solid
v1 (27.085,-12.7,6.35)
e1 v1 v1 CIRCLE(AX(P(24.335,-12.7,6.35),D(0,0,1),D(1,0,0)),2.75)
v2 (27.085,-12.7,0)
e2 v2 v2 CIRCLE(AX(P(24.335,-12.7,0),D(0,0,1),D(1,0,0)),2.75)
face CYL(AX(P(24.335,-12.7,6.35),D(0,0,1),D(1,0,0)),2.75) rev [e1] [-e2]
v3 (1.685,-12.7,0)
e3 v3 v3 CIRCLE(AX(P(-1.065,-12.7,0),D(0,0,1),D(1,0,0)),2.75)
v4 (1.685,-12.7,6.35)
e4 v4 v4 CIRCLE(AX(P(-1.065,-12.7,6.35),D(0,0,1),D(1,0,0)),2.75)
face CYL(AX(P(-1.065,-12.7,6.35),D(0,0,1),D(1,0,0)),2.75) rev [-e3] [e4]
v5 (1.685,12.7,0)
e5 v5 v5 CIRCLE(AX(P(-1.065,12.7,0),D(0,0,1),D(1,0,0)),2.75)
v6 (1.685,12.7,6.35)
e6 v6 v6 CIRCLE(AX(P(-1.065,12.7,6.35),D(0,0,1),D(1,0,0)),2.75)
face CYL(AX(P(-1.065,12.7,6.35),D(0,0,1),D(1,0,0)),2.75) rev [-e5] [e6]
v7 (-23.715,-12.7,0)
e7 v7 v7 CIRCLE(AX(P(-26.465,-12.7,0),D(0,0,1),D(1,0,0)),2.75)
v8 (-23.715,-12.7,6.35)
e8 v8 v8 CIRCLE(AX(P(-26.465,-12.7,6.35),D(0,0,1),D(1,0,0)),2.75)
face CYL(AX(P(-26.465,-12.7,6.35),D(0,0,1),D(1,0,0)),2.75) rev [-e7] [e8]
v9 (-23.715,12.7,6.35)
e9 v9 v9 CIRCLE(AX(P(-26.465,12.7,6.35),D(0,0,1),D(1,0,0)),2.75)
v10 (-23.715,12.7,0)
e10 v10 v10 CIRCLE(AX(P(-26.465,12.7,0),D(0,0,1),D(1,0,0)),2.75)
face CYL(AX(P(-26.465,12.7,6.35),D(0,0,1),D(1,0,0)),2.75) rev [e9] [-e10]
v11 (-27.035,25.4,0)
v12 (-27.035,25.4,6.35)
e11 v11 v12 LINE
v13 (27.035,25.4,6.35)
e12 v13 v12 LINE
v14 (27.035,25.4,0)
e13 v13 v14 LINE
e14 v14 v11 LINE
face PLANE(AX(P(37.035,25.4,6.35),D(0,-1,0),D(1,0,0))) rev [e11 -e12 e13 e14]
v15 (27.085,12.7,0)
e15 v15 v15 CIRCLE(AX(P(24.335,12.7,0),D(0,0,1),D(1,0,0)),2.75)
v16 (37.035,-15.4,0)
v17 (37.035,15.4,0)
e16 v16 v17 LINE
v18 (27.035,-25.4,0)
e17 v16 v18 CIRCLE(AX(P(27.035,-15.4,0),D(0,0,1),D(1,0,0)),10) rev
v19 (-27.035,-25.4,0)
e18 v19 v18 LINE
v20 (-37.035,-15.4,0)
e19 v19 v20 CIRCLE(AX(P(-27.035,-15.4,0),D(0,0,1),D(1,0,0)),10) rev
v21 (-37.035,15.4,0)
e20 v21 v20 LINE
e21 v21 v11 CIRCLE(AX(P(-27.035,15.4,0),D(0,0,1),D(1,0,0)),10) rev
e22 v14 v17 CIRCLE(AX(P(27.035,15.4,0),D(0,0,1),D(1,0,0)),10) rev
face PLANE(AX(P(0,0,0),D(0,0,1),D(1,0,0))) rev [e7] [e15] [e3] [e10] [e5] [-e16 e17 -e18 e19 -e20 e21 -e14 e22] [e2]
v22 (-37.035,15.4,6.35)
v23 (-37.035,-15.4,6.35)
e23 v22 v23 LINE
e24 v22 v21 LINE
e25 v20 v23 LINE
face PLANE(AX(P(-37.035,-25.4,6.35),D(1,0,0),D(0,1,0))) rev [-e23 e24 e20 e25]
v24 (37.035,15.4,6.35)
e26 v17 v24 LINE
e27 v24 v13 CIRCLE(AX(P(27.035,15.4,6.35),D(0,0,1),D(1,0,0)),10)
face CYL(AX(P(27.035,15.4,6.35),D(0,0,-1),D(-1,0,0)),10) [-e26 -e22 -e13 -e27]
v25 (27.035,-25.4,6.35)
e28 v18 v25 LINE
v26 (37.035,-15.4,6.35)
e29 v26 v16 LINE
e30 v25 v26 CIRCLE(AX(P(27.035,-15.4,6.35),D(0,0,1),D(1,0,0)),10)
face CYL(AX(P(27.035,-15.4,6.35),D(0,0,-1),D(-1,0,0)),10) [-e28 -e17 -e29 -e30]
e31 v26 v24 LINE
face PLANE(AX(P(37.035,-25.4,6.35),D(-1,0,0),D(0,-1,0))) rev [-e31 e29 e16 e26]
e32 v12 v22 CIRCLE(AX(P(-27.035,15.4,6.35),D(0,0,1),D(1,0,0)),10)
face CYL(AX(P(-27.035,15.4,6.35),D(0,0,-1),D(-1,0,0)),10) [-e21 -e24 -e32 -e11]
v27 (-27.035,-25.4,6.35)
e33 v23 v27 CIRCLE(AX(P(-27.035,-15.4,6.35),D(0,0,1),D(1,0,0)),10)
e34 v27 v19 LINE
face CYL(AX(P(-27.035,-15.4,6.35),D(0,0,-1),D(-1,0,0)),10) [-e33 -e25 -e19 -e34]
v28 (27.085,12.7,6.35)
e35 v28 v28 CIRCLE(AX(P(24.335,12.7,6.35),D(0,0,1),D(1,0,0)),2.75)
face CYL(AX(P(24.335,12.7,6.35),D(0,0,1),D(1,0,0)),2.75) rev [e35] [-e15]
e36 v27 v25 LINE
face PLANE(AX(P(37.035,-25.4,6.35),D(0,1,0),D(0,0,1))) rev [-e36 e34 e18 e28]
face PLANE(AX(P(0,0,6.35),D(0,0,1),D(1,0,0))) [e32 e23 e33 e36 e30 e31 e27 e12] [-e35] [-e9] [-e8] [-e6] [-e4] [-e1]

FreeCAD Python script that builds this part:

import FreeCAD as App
import Part
import Sketcher
Q = App.Units.Quantity


def edges_at(feature, points):
    """Names of the edges that pass closest to the given points."""
    edges = feature.Shape.Edges
    near = lambda p: min(range(len(edges)), key=lambda i: edges[i].distToShape(Part.Vertex(*p))[0])
    return sorted({f"Edge{near(p) + 1}" for p in points})


def add_polygon(sketch, points):
    """Adds a closed chain of lines whose ends are joined by coincident constraints."""
    first, n = sketch.GeometryCount, len(points)
    for a, b in zip(points, points[1:] + points[:1]):
        sketch.addGeometry(Part.LineSegment(App.Vector(*a, 0), App.Vector(*b, 0)), False)
    for i in range(n):
        sketch.addConstraint(Sketcher.Constraint("Coincident", first + i, 2, first + (i + 1) % n, 1))

doc = App.newDocument("Part")
params = doc.addObject("Spreadsheet::Sheet", "Params")
for row, (alias, value) in enumerate([
    ("sketch1_height", "50.8 mm"),
    ("sketch1_width", "74.07 mm"),
    ("pad1_length", "6.35 mm"),
    ("fillet_radius", "10 mm"),
    ("sketch2_diameter", "5.5 mm"),
    ("hole_diameter", "5.5 mm"),
], start=1):
    params.set(f"A{row}", alias)
    params.set(f"B{row}", "=" + value)
    params.setAlias(f"B{row}", alias)

body = doc.addObject("PartDesign::Body", "Body")

# Sketch on XY plane
sketch1 = body.newObject("Sketcher::SketchObject", "Sketch")
sketch1.AttachmentSupport = (doc.getObject("XY_Plane"), [""])
sketch1.MapMode = "FlatFace"
add_polygon(sketch1, [(-37.035, 25.4), (-37.035, -25.4), (37.035, -25.4), (37.035, 25.4)])  # lines 0-3
sketch1.addConstraint([
    Sketcher.Constraint("Vertical", 0),
    Sketcher.Constraint("Horizontal", 1),
    Sketcher.Constraint("Vertical", 2),
    Sketcher.Constraint("Horizontal", 3),
    Sketcher.Constraint("Symmetric", 0, 2, 2, 2, -1, 1),
    Sketcher.Constraint("DistanceY", 0, 2, 0, 1, Q("50.8 mm")),
    Sketcher.Constraint("DistanceX", 1, 1, 1, 2, Q("74.07 mm")),
])
sketch1.setExpression("Constraints[9]", "Params.sketch1_height")
sketch1.setExpression("Constraints[10]", "Params.sketch1_width")
pad1 = body.newObject("PartDesign::Pad", "Pad")
pad1.Profile = sketch1
pad1.setExpression("Length", "Params.pad1_length")
doc.recompute()

fillet = body.newObject("PartDesign::Fillet", "Fillet")
fillet.Base = (pad1, edges_at(pad1, [
    (-37.035, 25.4, 3.175),
    (37.035, 25.4, 3.175),
    (37.035, -25.4, 3.175),
    (-37.035, -25.4, 3.175),
]))
fillet.setExpression("Radius", "Params.fillet_radius")

# Sketch on XY plane
sketch2 = body.newObject("Sketcher::SketchObject", "Sketch001")
sketch2.AttachmentSupport = (doc.getObject("XY_Plane"), [""])
sketch2.MapMode = "FlatFace"
sketch2.AttachmentOffset = App.Placement(App.Vector(0, 0, 6.35), App.Rotation())
sketch2.addGeometry([
    Part.Circle(App.Vector(-26.465, 12.7, 0), App.Vector(0, 0, 1), 2.75),  # 0
    Part.Circle(App.Vector(-26.465, -12.7, 0), App.Vector(0, 0, 1), 2.75),  # 1
    Part.Circle(App.Vector(-1.065, -12.7, 0), App.Vector(0, 0, 1), 2.75),  # 2
    Part.Circle(App.Vector(-1.065, 12.7, 0), App.Vector(0, 0, 1), 2.75),  # 3
    Part.Circle(App.Vector(24.335, 12.7, 0), App.Vector(0, 0, 1), 2.75),  # 4
    Part.Circle(App.Vector(24.335, -12.7, 0), App.Vector(0, 0, 1), 2.75),  # 5
], False)
sketch2.addConstraint([
    Sketcher.Constraint("Equal", 0, 1),
    Sketcher.Constraint("Equal", 1, 2),
    Sketcher.Constraint("Equal", 2, 3),
    Sketcher.Constraint("Equal", 3, 4),
    Sketcher.Constraint("Equal", 4, 5),
    Sketcher.Constraint("Symmetric", 0, 3, 1, 3, -1),
    Sketcher.Constraint("Symmetric", 2, 3, 3, 3, -1),
    Sketcher.Constraint("Symmetric", 4, 3, 5, 3, -1),
    Sketcher.Constraint("Horizontal", 1, 3, 2, 3),
    Sketcher.Constraint("Horizontal", 3, 3, 4, 3),
    Sketcher.Constraint("Diameter", 0, Q("5.5 mm")),
    Sketcher.Constraint("DistanceY", -1, 1, 0, 3, Q("12.7 mm")),
    Sketcher.Constraint("DistanceX", 1, 3, 2, 3, Q("25.4 mm")),
    Sketcher.Constraint("DistanceX", 3, 3, 4, 3, Q("25.4 mm")),
    Sketcher.Constraint("DistanceX", 0, 3, -1, 1, Q("26.465 mm")),
])
sketch2.setExpression("Constraints[10]", "Params.sketch2_diameter")
doc.recompute()
hole = body.newObject("PartDesign::Hole", "Hole")
hole.Profile = sketch2
hole.ThreadType = "None"
hole.setExpression("Diameter", "Params.hole_diameter")
hole.DepthType = "ThroughAll"

doc.recompute()
